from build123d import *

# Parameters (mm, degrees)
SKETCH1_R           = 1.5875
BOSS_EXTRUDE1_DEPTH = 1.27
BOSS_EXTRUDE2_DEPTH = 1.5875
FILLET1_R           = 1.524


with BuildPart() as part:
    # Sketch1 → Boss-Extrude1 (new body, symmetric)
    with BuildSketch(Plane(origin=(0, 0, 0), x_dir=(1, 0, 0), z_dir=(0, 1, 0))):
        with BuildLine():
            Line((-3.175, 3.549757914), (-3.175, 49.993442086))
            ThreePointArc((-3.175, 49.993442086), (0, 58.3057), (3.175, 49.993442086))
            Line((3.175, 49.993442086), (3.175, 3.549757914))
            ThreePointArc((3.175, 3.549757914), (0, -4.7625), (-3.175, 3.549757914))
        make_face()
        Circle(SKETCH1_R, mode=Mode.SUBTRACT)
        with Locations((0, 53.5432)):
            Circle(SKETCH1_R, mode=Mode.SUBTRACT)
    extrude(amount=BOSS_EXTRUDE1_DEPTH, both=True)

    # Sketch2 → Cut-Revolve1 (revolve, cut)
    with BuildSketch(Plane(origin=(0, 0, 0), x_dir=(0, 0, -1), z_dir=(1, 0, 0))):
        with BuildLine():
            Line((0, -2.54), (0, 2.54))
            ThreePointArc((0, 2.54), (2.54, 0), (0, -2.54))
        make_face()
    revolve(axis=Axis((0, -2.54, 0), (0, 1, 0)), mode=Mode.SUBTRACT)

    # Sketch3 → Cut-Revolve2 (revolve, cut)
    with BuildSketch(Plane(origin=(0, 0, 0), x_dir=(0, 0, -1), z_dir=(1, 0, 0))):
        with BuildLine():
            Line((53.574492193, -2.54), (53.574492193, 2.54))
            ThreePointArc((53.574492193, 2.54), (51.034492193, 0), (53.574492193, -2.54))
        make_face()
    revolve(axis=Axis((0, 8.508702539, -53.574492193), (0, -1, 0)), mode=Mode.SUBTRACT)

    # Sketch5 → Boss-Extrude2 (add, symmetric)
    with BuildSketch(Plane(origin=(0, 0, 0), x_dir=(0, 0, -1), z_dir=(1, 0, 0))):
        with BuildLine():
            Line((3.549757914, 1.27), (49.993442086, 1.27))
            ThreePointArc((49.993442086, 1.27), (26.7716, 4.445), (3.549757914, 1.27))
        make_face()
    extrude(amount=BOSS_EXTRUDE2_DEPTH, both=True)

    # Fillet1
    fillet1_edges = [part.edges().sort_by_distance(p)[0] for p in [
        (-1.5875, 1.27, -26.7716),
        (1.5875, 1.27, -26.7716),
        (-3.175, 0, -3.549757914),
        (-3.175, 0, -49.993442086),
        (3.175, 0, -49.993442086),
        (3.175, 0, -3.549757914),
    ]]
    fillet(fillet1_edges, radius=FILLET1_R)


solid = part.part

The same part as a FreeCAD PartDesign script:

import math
import FreeCAD as App
import Part
import Sketcher
Q = App.Units.Quantity


def edges_at(feature, points):
    """Names of the edges that pass closest to the given points."""
    edges = feature.Shape.Edges
    near = lambda p: min(range(len(edges)), key=lambda i: edges[i].distToShape(Part.Vertex(*p))[0])
    return sorted({f"Edge{near(p) + 1}" for p in points})

doc = App.newDocument("Part")
body = doc.addObject("PartDesign::Body", "Body")

sketch1 = body.newObject("Sketcher::SketchObject", "Sketch")
sketch1.AttachmentSupport = (doc.getObject("XZ_Plane"), [""])
sketch1.MapMode = "FlatFace"
sketch1.addGeometry(Part.LineSegment(App.Vector(-3.2, -50, 0), App.Vector(-3.2, -3.5, 0)), False)
sketch1.addGeometry(Part.ArcOfCircle(Part.Circle(App.Vector(0, 0, 0), App.Vector(0, 0, 1), 4.8), math.radians(-48), math.radians(228)), False)
sketch1.addGeometry(Part.LineSegment(App.Vector(3.2, -3.5, 0), App.Vector(3.2, -50, 0)), False)
sketch1.addGeometry(Part.ArcOfCircle(Part.Circle(App.Vector(0, -53.5, 0), App.Vector(0, 0, 1), 4.8), math.radians(132), math.radians(408)), False)
sketch1.addGeometry(Part.Circle(App.Vector(0, 0, 0), App.Vector(0, 0, 1), 1.6), False)
sketch1.addGeometry(Part.Circle(App.Vector(0, -53.5, 0), App.Vector(0, 0, 1), 1.6), False)
sketch1.addConstraint(Sketcher.Constraint("Coincident", 0, 2, 1, 2))
sketch1.addConstraint(Sketcher.Constraint("Coincident", 1, 1, 2, 1))
sketch1.addConstraint(Sketcher.Constraint("Coincident", 2, 2, 3, 2))
sketch1.addConstraint(Sketcher.Constraint("Coincident", 3, 1, 0, 1))
sketch1.addConstraint(Sketcher.Constraint("Vertical", 0))
sketch1.addConstraint(Sketcher.Constraint("Vertical", 2))
sketch1.addConstraint(Sketcher.Constraint("Coincident", 1, 3, -1, 1))
sketch1.addConstraint(Sketcher.Constraint("Coincident", 4, 3, -1, 1))
sketch1.addConstraint(Sketcher.Constraint("Coincident", 5, 3, 3, 3))
sketch1.addConstraint(Sketcher.Constraint("Equal", 1, 3))
sketch1.addConstraint(Sketcher.Constraint("Equal", 4, 5))
sketch1.addConstraint(Sketcher.Constraint("Symmetric", 2, 2, 3, 1, -2))
sketch1.addConstraint(Sketcher.Constraint("Diameter", 4, Q("0.125 in")))
sketch1.addConstraint(Sketcher.Constraint("Radius", 1, Q("0.1875 in")))
sketch1.addConstraint(Sketcher.Constraint("DistanceX", 0, 2, 1, 1, Q("0.25 in")))
sketch1.addConstraint(Sketcher.Constraint("DistanceY", 3, 3, -1, 1, Q("2.108 in")))
pad1 = body.newObject("PartDesign::Pad", "Pad")
pad1.Profile = sketch1
pad1.Length = Q("0.1 in")
pad1.Midplane = True

sketch2 = body.newObject("Sketcher::SketchObject", "Sketch001")
sketch2.AttachmentSupport = (doc.getObject("YZ_Plane"), [""])
sketch2.MapMode = "FlatFace"
sketch2.addGeometry(Part.LineSegment(App.Vector(2.5, 0, 0), App.Vector(-2.5, 0, 0)), False)
sketch2.addGeometry(Part.ArcOfCircle(Part.Circle(App.Vector(0, 0, 0), App.Vector(0, 0, 1), 2.5), math.radians(180), math.radians(360)), False)
sketch2.addConstraint(Sketcher.Constraint("Coincident", 0, 1, 1, 2))
sketch2.addConstraint(Sketcher.Constraint("Coincident", 1, 1, 0, 2))
sketch2.addConstraint(Sketcher.Constraint("Horizontal", 0))
sketch2.addConstraint(Sketcher.Constraint("Coincident", 1, 3, -1, 1))
sketch2.addConstraint(Sketcher.Constraint("PointOnObject", 0, 1, -1))
sketch2.addConstraint(Sketcher.Constraint("Radius", 1, Q("0.1 in")))
groove = body.newObject("PartDesign::Groove", "Groove")
groove.Profile = sketch2
groove.ReferenceAxis = (sketch2, ["H_Axis"])
groove.Angle = 360

sketch3 = body.newObject("Sketcher::SketchObject", "Sketch002")
sketch3.AttachmentSupport = (doc.getObject("YZ_Plane"), [""])
sketch3.MapMode = "FlatFace"
sketch3.addGeometry(Part.LineSegment(App.Vector(-2.5, -53.6, 0), App.Vector(2.5, -53.6, 0)), False)
sketch3.addGeometry(Part.ArcOfCircle(Part.Circle(App.Vector(0, -53.6, 0), App.Vector(0, 0, 1), 2.5), math.radians(0), math.radians(180)), False)
sketch3.addGeometry(Part.LineSegment(App.Vector(2.5, -53.6, 0), App.Vector(-2.5, -53.6, 0)), True)
sketch3.addConstraint(Sketcher.Constraint("Coincident", 0, 1, 1, 2))
sketch3.addConstraint(Sketcher.Constraint("Coincident", 1, 1, 0, 2))
sketch3.addConstraint(Sketcher.Constraint("Horizontal", 0))
sketch3.addConstraint(Sketcher.Constraint("Horizontal", 2))
sketch3.addConstraint(Sketcher.Constraint("Coincident", 2, 1, 1, 1))
sketch3.addConstraint(Sketcher.Constraint("PointOnObject", 1, 3, -2))
sketch3.addConstraint(Sketcher.Constraint("Horizontal", 1, 3, 0, 1))
sketch3.addConstraint(Sketcher.Constraint("Equal", 0, 2))
sketch3.addConstraint(Sketcher.Constraint("Radius", 1, Q("0.1 in")))
sketch3.addConstraint(Sketcher.Constraint("DistanceY", 1, 3, -1, 1, Q("53.574492 mm")))
groove2 = body.newObject("PartDesign::Groove", "Groove001")
groove2.Profile = sketch3
groove2.ReferenceAxis = (sketch3, ["Axis0"])
groove2.Angle = 360

sketch4 = body.newObject("Sketcher::SketchObject", "Sketch003")
sketch4.AttachmentSupport = (doc.getObject("YZ_Plane"), [""])
sketch4.MapMode = "FlatFace"
sketch4.addGeometry(Part.LineSegment(App.Vector(1, -4, 0), App.Vector(1, -50, 0)), False)
sketch4.addGeometry(Part.ArcOfCircle(Part.Circle(App.Vector(-82, -27, 0), App.Vector(0, 0, 1), 87), math.radians(-16), math.radians(16)), False)
sketch4.addConstraint(Sketcher.Constraint("Coincident", 0, 1, 1, 2))
sketch4.addConstraint(Sketcher.Constraint("Coincident", 1, 1, 0, 2))
sketch4.addConstraint(Sketcher.Constraint("Vertical", 0))
sketch4.addConstraint(Sketcher.Constraint("DistanceX", -1, 1, 0, 1, Q("0.05 in")))
sketch4.addConstraint(Sketcher.Constraint("DistanceY", 1, 3, -1, 1, Q("1.054 in")))
sketch4.addConstraint(Sketcher.Constraint("Radius", 1, Q("86.509382 mm")))
sketch4.addConstraint(Sketcher.Constraint("DistanceY", 0, 2, 0, 1, Q("46.443684 mm")))
pad2 = body.newObject("PartDesign::Pad", "Pad001")
pad2.Profile = sketch4
pad2.Length = Q("0.125 in")
pad2.Midplane = True
doc.recompute()

fillet = body.newObject("PartDesign::Fillet", "Fillet")
fillet.Base = (pad2, edges_at(pad2, [
    (-1.587, 1.27, -26.772),
    (1.587, 1.27, -26.772),
    (-3.175, 0, -3.55),
    (-3.175, 0, -49.993),
    (3.175, 0, -49.993),
    (3.175, 0, -3.55),
]))
fillet.Radius = Q("0.06 in")

doc.recompute()
